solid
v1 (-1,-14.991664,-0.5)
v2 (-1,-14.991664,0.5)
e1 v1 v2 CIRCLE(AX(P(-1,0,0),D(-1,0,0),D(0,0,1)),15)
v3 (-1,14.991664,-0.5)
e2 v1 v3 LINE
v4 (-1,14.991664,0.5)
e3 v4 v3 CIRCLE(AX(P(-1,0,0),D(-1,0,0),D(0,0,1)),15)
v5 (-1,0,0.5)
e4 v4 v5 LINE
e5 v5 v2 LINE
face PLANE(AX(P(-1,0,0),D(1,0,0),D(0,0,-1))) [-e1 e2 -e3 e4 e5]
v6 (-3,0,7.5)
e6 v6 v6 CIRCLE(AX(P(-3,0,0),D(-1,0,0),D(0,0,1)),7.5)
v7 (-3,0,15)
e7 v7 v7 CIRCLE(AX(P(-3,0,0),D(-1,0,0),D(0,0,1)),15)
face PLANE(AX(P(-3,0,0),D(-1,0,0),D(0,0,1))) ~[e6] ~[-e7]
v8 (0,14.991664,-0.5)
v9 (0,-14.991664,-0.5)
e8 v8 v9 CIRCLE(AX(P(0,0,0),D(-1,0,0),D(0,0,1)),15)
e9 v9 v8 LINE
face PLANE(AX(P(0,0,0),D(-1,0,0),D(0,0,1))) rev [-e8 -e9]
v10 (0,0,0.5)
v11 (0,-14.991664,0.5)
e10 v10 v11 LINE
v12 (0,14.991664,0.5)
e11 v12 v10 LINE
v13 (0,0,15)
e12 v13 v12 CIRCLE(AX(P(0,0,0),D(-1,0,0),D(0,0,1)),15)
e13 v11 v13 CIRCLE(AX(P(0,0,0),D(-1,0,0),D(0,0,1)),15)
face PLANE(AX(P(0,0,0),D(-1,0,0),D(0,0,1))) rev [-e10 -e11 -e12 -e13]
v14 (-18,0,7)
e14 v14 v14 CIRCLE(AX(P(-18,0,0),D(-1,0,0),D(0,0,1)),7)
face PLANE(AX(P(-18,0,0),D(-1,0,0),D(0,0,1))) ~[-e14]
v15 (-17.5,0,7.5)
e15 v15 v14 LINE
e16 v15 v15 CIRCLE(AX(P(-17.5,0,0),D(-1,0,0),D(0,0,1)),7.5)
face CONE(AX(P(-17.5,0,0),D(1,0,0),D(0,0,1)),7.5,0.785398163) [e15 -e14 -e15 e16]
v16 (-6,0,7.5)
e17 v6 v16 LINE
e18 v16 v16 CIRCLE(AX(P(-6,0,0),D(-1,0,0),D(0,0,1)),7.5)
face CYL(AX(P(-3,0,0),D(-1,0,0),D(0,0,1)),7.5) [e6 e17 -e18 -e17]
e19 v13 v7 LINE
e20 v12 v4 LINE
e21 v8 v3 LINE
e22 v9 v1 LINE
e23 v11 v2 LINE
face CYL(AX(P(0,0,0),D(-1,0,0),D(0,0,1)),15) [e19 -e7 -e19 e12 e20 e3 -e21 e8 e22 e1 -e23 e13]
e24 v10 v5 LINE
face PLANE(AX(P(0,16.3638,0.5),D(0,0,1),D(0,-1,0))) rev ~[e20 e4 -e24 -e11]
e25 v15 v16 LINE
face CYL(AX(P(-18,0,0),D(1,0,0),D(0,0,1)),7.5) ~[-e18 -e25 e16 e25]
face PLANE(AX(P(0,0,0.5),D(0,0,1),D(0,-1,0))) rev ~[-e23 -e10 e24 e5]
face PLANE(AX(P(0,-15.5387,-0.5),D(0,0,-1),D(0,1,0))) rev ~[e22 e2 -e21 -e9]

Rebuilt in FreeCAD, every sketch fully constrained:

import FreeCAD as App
import Part
import Sketcher

V = App.Vector
Q = App.Units.Quantity


def edges_at(feature, points):
    """Names of the edges that pass closest to the given points."""
    edges = feature.Shape.Edges
    near = lambda p: min(range(len(edges)), key=lambda i: edges[i].distToShape(Part.Vertex(*p))[0])
    return sorted({f"Edge{near(p) + 1}" for p in points})

doc = App.newDocument("Part")
body = doc.addObject("PartDesign::Body", "Body")

# Sketch on XZ plane
sketch1 = body.newObject("Sketcher::SketchObject", "Sketch")
sketch1.AttachmentSupport = (doc.getObject("XZ_Plane"), [""])
sketch1.MapMode = "FlatFace"
sketch1.addGeometry([
    Part.LineSegment(V(0, 15, 0), V(0, 0, 0)),  # 0
    Part.LineSegment(V(0, 0, 0), V(-18, 0, 0)),  # 1
    Part.LineSegment(V(-18, 0, 0), V(-18, 7.5, 0)),  # 2
    Part.LineSegment(V(-18, 7.5, 0), V(-3, 7.5, 0)),  # 3
    Part.LineSegment(V(-3, 7.5, 0), V(-3, 15, 0)),  # 4
    Part.LineSegment(V(-3, 15, 0), V(0, 15, 0)),  # 5
], False)
sketch1.addConstraint([
    Sketcher.Constraint("Coincident", 0, 2, 1, 1),
    Sketcher.Constraint("Coincident", 1, 2, 2, 1),
    Sketcher.Constraint("Coincident", 2, 2, 3, 1),
    Sketcher.Constraint("Coincident", 3, 2, 4, 1),
    Sketcher.Constraint("Coincident", 4, 2, 5, 1),
    Sketcher.Constraint("Coincident", 5, 2, 0, 1),
    Sketcher.Constraint("Vertical", 0),
    Sketcher.Constraint("Horizontal", 1),
    Sketcher.Constraint("Vertical", 2),
    Sketcher.Constraint("Horizontal", 3),
    Sketcher.Constraint("Vertical", 4),
    Sketcher.Constraint("Horizontal", 5),
    Sketcher.Constraint("Coincident", 0, 2, -1, 1),
    Sketcher.Constraint("Equal", 3, 0),
    Sketcher.Constraint("Equal", 2, 4),
    Sketcher.Constraint("DistanceX", 3, 1, 3, 2, Q("15 mm")),
    Sketcher.Constraint("DistanceX", 5, 1, 5, 2, Q("3 mm")),
])
revolution = body.newObject("PartDesign::Revolution", "Revolution")
revolution.Profile = sketch1
revolution.ReferenceAxis = (sketch1, ["H_Axis"])
revolution.Angle = 360
doc.recompute()

chamfer = body.newObject("PartDesign::Chamfer", "Chamfer")
chamfer.Base = (revolution, edges_at(revolution, [(-18, 0, -7.5)]))
chamfer.Size = 0.5

# Sketch on YZ plane
sketch2 = body.newObject("Sketcher::SketchObject", "Sketch001")
sketch2.AttachmentSupport = (doc.getObject("YZ_Plane"), [""])
sketch2.MapMode = "FlatFace"
sketch2.addGeometry([
    Part.LineSegment(V(16.4, 0.5, 0), V(-15.5, 0.5, 0)),
    Part.LineSegment(V(-15.5, 0.5, 0), V(-15.5, -0.5, 0)),
    Part.LineSegment(V(-15.5, -0.5, 0), V(16.4, -0.5, 0)),
    Part.LineSegment(V(16.4, -0.5, 0), V(16.4, 0.5, 0)),
], False)
sketch2.addConstraint([
    Sketcher.Constraint("Coincident", 0, 2, 1, 1),
    Sketcher.Constraint("Coincident", 1, 2, 2, 1),
    Sketcher.Constraint("Coincident", 2, 2, 3, 1),
    Sketcher.Constraint("Coincident", 3, 2, 0, 1),
    Sketcher.Constraint("Horizontal", 0),
    Sketcher.Constraint("Vertical", 1),
    Sketcher.Constraint("Horizontal", 2),
    Sketcher.Constraint("Vertical", 3),
    Sketcher.Constraint("DistanceY", 1, 2, 1, 1, Q("1 mm")),
    Sketcher.Constraint("DistanceY", -1, 1, 0, 2, Q("0.5 mm")),
    Sketcher.Constraint("DistanceX", 0, 2, 0, 1, Q("31.9025 mm")),
    Sketcher.Constraint("DistanceX", 0, 2, -1, 1, Q("15.5387 mm")),
])
pocket1 = body.newObject("PartDesign::Pocket", "Pocket")
pocket1.Profile = sketch2
pocket1.Length = 1

doc.recompute()
